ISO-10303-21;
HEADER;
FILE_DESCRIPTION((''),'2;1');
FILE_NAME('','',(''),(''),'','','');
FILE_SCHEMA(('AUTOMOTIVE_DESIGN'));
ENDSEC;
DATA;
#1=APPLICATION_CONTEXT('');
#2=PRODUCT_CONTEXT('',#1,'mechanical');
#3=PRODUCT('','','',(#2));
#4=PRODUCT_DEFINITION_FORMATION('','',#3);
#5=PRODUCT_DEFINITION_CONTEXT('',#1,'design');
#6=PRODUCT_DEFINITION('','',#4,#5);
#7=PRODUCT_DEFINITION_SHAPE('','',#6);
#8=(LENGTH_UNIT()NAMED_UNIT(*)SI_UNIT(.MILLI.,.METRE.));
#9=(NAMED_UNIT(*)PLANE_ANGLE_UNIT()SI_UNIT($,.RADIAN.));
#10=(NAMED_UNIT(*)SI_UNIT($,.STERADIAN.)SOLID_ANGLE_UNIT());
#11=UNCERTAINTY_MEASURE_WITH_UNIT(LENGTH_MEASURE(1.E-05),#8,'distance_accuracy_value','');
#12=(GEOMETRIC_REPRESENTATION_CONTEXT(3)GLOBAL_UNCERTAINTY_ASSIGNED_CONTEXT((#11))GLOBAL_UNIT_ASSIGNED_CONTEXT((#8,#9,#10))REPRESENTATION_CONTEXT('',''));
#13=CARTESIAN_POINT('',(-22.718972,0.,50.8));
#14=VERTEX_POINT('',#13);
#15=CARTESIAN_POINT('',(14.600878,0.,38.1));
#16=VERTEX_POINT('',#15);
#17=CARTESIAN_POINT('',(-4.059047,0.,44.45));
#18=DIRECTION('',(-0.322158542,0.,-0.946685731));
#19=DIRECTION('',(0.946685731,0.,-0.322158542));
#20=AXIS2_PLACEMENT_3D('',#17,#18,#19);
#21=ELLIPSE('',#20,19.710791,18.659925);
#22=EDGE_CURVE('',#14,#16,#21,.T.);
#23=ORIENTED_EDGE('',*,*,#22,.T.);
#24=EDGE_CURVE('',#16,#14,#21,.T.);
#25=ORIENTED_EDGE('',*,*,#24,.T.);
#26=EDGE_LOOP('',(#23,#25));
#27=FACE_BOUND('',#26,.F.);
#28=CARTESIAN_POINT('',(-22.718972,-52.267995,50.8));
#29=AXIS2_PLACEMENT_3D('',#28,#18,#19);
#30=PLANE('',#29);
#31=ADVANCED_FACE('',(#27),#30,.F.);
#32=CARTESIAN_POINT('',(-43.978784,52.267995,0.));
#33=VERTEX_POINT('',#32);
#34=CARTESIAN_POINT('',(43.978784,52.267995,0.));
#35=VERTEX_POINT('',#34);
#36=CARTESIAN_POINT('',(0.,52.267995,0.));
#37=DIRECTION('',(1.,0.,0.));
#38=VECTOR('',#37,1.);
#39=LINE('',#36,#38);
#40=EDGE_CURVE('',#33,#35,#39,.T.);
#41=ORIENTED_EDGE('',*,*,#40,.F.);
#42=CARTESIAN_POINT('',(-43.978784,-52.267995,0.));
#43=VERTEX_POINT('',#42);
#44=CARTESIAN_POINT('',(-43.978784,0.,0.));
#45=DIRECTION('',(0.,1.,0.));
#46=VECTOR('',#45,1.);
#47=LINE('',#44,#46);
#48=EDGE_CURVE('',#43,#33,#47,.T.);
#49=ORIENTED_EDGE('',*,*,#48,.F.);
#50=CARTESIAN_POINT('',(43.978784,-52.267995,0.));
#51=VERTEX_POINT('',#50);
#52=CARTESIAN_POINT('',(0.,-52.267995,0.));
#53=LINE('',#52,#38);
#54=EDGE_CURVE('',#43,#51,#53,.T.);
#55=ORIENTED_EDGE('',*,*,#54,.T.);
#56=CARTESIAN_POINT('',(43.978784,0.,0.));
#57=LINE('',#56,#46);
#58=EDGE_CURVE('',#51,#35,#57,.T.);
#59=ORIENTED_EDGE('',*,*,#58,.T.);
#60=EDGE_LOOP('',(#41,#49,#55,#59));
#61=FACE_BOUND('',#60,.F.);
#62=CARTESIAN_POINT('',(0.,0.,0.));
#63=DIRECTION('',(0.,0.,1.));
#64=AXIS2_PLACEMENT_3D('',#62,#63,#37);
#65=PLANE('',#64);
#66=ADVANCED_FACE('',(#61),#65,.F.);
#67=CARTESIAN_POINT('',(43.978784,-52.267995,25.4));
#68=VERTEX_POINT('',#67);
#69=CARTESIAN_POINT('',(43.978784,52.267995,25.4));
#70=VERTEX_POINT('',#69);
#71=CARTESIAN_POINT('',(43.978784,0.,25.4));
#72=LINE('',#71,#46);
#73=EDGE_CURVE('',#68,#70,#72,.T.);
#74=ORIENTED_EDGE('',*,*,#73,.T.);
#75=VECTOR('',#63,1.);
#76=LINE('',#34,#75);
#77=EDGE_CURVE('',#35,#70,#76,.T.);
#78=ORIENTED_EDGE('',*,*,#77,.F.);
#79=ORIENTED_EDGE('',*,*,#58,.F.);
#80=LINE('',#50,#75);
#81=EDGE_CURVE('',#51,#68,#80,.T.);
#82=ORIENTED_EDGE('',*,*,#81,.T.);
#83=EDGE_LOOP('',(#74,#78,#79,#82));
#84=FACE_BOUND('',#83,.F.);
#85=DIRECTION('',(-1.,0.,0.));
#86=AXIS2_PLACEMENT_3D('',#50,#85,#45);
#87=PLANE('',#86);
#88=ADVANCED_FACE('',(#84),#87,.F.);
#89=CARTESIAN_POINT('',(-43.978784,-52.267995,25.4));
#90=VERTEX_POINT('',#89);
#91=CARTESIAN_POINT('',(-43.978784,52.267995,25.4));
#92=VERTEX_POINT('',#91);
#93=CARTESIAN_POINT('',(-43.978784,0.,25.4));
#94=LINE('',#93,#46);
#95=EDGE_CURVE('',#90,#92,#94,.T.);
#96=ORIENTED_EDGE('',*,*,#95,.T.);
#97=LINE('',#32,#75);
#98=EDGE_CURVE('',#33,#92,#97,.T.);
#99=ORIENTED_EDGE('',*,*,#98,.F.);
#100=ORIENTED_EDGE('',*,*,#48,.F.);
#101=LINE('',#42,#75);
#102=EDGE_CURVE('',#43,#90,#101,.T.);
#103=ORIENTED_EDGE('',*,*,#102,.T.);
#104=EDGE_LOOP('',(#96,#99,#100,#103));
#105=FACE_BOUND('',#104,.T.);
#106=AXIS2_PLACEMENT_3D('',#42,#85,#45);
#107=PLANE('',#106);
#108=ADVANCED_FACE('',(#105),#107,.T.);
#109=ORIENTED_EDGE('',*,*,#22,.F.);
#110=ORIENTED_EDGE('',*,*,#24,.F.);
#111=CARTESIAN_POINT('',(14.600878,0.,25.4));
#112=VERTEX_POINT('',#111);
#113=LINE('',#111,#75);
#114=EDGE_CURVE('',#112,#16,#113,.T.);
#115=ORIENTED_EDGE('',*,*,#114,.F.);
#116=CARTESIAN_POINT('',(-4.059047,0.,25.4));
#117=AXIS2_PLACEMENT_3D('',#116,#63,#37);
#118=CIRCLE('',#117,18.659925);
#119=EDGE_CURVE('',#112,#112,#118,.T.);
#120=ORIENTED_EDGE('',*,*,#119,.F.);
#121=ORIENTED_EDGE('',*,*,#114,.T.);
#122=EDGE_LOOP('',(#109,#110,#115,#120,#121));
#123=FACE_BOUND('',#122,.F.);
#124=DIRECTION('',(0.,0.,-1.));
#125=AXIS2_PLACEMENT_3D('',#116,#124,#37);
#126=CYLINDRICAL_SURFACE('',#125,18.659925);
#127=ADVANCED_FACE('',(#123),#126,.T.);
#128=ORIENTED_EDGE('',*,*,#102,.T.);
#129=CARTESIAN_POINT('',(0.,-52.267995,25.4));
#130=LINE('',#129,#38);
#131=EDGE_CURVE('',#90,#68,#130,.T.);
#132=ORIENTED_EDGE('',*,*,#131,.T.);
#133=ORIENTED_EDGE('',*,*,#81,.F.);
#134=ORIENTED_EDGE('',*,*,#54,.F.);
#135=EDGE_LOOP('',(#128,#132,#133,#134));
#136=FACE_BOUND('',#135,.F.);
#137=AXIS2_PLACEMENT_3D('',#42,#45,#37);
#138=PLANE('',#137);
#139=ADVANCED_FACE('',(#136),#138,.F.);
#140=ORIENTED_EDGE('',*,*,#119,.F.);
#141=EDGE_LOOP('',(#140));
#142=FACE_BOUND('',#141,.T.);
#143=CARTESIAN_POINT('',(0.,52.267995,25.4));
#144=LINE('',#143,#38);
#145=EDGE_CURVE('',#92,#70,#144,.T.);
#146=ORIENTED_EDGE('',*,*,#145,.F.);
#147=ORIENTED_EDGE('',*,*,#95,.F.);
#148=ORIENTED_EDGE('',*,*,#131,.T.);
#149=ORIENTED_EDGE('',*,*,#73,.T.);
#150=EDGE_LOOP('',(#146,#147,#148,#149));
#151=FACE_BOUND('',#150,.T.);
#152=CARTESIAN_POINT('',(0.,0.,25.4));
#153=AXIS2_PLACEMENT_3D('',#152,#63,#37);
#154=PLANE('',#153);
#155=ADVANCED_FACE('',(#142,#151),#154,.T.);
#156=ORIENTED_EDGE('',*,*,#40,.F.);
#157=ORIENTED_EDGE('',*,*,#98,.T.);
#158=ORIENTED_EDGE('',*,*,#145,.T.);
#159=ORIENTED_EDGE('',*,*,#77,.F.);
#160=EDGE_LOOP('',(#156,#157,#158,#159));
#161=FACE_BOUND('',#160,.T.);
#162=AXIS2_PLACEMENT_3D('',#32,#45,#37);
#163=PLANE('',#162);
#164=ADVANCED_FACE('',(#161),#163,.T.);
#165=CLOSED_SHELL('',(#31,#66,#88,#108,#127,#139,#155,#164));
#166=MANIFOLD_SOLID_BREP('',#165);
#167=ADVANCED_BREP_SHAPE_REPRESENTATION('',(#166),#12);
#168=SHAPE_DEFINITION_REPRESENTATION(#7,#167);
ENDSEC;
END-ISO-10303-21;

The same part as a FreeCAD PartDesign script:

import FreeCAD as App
import Part
import Sketcher

V = App.Vector
Q = App.Units.Quantity

doc = App.newDocument("Part")
body = doc.addObject("PartDesign::Body", "Body")

# Sketch on XY plane
sketch1 = body.newObject("Sketcher::SketchObject", "Sketch")
sketch1.AttachmentSupport = (doc.getObject("XY_Plane"), [""])
sketch1.MapMode = "FlatFace"
sketch1.addGeometry(Part.LineSegment(V(-43.978784, 52.267995, 0), V(-43.978784, -52.267995, 0)), False)
sketch1.addGeometry(Part.LineSegment(V(-43.978784, -52.267995, 0), V(43.978784, -52.267995, 0)), False)
sketch1.addGeometry(Part.LineSegment(V(43.978784, -52.267995, 0), V(43.978784, 52.267995, 0)), False)
sketch1.addGeometry(Part.LineSegment(V(43.978784, 52.267995, 0), V(-43.978784, 52.267995, 0)), False)
sketch1.addConstraint(Sketcher.Constraint("Coincident", 0, 2, 1, 1))
sketch1.addConstraint(Sketcher.Constraint("Coincident", 1, 2, 2, 1))
sketch1.addConstraint(Sketcher.Constraint("Coincident", 2, 2, 3, 1))
sketch1.addConstraint(Sketcher.Constraint("Coincident", 3, 2, 0, 1))
sketch1.addConstraint(Sketcher.Constraint("Vertical", 0))
sketch1.addConstraint(Sketcher.Constraint("Horizontal", 1))
sketch1.addConstraint(Sketcher.Constraint("Vertical", 2))
sketch1.addConstraint(Sketcher.Constraint("Horizontal", 3))
sketch1.addConstraint(Sketcher.Constraint("Symmetric", 0, 2, 2, 2, -1, 1))
sketch1.addConstraint(Sketcher.Constraint("DistanceY", 0, 2, 0, 1, 104.53599))
sketch1.addConstraint(Sketcher.Constraint("DistanceX", 1, 1, 1, 2, 87.957568))
pad1 = body.newObject("PartDesign::Pad", "Pad")
pad1.Profile = sketch1
pad1.Length = Q("1 in")

# Sketch on XY plane
sketch2 = body.newObject("Sketcher::SketchObject", "Sketch001")
sketch2.AttachmentSupport = (doc.getObject("XY_Plane"), [""])
sketch2.MapMode = "FlatFace"
sketch2.AttachmentOffset = App.Placement(V(0, 0, 1 * 25.4), App.Rotation())
sketch2.addGeometry(Part.Circle(V(-4.059047, 0, 0), V(0, 0, 1), 18.659925), False)
sketch2.addConstraint(Sketcher.Constraint("PointOnObject", 0, 3, -1))
sketch2.addConstraint(Sketcher.Constraint("Diameter", 0, 37.31985))
sketch2.addConstraint(Sketcher.Constraint("DistanceX", 0, 3, -1, 1, 4.059047))
pad2 = body.newObject("PartDesign::Pad", "Pad001")
pad2.Profile = sketch2
pad2.Length = Q("1 in")

# Sketch on XZ plane
sketch3 = body.newObject("Sketcher::SketchObject", "Sketch002")
sketch3.AttachmentSupport = (doc.getObject("XZ_Plane"), [""])
sketch3.MapMode = "FlatFace"
sketch3.AttachmentOffset = App.Placement(V(0, 0, 52.267995), App.Rotation())
sketch3.addGeometry(Part.LineSegment(V(14.600879, 50.8, 0), V(-22.718972, 50.8, 0)), False)
sketch3.addGeometry(Part.LineSegment(V(-22.718972, 50.8, 0), V(14.600879, 38.1, 0)), False)
sketch3.addGeometry(Part.LineSegment(V(14.600879, 38.1, 0), V(14.600879, 50.8, 0)), False)
sketch3.addConstraint(Sketcher.Constraint("Coincident", 0, 2, 1, 1))
sketch3.addConstraint(Sketcher.Constraint("Coincident", 1, 2, 2, 1))
sketch3.addConstraint(Sketcher.Constraint("Coincident", 2, 2, 0, 1))
sketch3.addConstraint(Sketcher.Constraint("Horizontal", 0))
sketch3.addConstraint(Sketcher.Constraint("Vertical", 2))
sketch3.addConstraint(Sketcher.Constraint("DistanceY", 2, 1, 2, 2, Q("0.5 in")))
sketch3.addConstraint(Sketcher.Constraint("DistanceY", -1, 1, 0, 2, Q("2 in")))
sketch3.addConstraint(Sketcher.Constraint("DistanceX", 0, 2, 0, 1, 37.319851))
sketch3.addConstraint(Sketcher.Constraint("DistanceX", -1, 1, 1, 2, 14.600879))
pocket1 = body.newObject("PartDesign::Pocket", "Pocket")
pocket1.Profile = sketch3
pocket1.Type = "ThroughAll"

doc.recompute()
